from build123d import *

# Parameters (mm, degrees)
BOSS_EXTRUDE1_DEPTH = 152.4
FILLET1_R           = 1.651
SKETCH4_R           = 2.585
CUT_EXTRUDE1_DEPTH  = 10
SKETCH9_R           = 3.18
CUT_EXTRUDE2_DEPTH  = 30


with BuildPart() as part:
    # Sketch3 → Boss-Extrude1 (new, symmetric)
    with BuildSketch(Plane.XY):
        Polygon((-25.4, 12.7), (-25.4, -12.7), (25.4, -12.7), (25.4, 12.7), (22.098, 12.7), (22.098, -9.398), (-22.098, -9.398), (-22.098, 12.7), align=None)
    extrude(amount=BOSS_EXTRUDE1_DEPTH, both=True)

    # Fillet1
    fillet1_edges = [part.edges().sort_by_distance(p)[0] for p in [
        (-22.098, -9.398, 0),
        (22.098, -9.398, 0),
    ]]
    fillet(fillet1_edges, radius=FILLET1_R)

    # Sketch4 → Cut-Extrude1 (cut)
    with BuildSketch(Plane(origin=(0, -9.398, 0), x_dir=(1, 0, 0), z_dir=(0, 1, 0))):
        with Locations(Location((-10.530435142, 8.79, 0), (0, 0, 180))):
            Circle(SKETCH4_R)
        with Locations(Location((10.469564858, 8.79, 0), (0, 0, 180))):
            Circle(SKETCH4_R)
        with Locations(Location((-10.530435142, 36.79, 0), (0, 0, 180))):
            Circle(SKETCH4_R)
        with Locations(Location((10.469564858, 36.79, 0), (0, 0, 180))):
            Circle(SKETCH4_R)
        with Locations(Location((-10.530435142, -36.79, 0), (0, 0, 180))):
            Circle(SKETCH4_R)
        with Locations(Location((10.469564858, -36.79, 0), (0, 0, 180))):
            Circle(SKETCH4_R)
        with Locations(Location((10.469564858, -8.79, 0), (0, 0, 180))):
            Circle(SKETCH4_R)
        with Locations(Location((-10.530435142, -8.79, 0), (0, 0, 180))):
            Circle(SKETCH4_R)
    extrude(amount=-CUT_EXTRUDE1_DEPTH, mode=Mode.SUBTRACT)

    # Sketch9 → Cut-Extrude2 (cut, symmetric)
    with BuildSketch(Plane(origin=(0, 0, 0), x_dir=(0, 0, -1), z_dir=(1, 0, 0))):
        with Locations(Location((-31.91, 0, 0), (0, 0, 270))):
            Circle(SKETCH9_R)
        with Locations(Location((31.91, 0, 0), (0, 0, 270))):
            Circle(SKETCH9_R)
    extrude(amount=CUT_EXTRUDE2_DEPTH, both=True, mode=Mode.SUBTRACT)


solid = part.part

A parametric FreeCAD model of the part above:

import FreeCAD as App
import Part
import Sketcher

V = App.Vector
Q = App.Units.Quantity


def edges_at(feature, points):
    """Names of the edges that pass closest to the given points."""
    edges = feature.Shape.Edges
    near = lambda p: min(range(len(edges)), key=lambda i: edges[i].distToShape(Part.Vertex(*p))[0])
    return sorted({f"Edge{near(p) + 1}" for p in points})


def add_polygon(sketch, points):
    """Adds a closed chain of lines whose ends are joined by coincident constraints."""
    first, n = sketch.GeometryCount, len(points)
    for a, b in zip(points, points[1:] + points[:1]):
        sketch.addGeometry(Part.LineSegment(App.Vector(*a, 0), App.Vector(*b, 0)), False)
    for i in range(n):
        sketch.addConstraint(Sketcher.Constraint("Coincident", first + i, 2, first + (i + 1) % n, 1))

doc = App.newDocument("Part")
body = doc.addObject("PartDesign::Body", "Body")

# Sketch on XY plane
sketch1 = doc.addObject("Sketcher::SketchObject", "Sketch")
body.addObject(sketch1)
sketch1.AttachmentSupport = (doc.XY_Plane, [""])
sketch1.MapMode = "FlatFace"
add_polygon(sketch1, [(-25.4, 12.7), (-25.4, -12.7), (25.4, -12.7), (25.4, 12.7), (22.098, 12.7), (22.098, -9.398), (-22.098, -9.398), (-22.098, 12.7)])  # lines 0-7
sketch1.addConstraint([
    Sketcher.Constraint("Vertical", 0),
    Sketcher.Constraint("Horizontal", 1),
    Sketcher.Constraint("Vertical", 2),
    Sketcher.Constraint("Horizontal", 3),
    Sketcher.Constraint("Vertical", 4),
    Sketcher.Constraint("Horizontal", 5),
    Sketcher.Constraint("Vertical", 6),
    Sketcher.Constraint("Horizontal", 7),
    Sketcher.Constraint("Symmetric", 0, 2, 2, 2, -1, 1),
    Sketcher.Constraint("Symmetric", 3, 2, 6, 2, -2),
    Sketcher.Constraint("DistanceX", 1, 1, 1, 2, Q("2 in")),
    Sketcher.Constraint("DistanceY", 0, 2, 0, 1, Q("1 in")),
    Sketcher.Constraint("DistanceX", 3, 2, 3, 1, Q("0.13 in")),
    Sketcher.Constraint("DistanceY", 4, 2, 4, 1, Q("0.87 in")),
])
pad1 = doc.addObject("PartDesign::Pad", "Pad")
body.addObject(pad1)
pad1.Profile = sketch1
pad1.Length = Q("12 in")
pad1.Midplane = True
doc.recompute()

fillet = doc.addObject("PartDesign::Fillet", "Fillet")
body.addObject(fillet)
fillet.Base = (pad1, edges_at(pad1, [(-22.098, -9.398, 0), (22.098, -9.398, 0)]))
fillet.Radius = Q("0.065 in")

# Sketch on XZ plane
sketch2 = doc.addObject("Sketcher::SketchObject", "Sketch001")
body.addObject(sketch2)
sketch2.AttachmentSupport = (doc.XZ_Plane, [""])
sketch2.MapMode = "FlatFace"
sketch2.AttachmentOffset = App.Placement(V(0, 0, 0.37 * 25.4), App.Rotation())
sketch2.addGeometry([
    Part.Circle(V(-10.530435, -8.79, 0), V(0, 0, 1), 2.585),  # 0
    Part.Circle(V(10.469565, -8.79, 0), V(0, 0, 1), 2.585),  # 1
    Part.Circle(V(-10.530435, -36.79, 0), V(0, 0, 1), 2.585),  # 2
    Part.Circle(V(10.469565, -36.79, 0), V(0, 0, 1), 2.585),  # 3
    Part.Circle(V(-10.530435, 36.79, 0), V(0, 0, 1), 2.585),  # 4
    Part.Circle(V(10.469565, 36.79, 0), V(0, 0, 1), 2.585),  # 5
    Part.Circle(V(10.469565, 8.79, 0), V(0, 0, 1), 2.585),  # 6
    Part.Circle(V(-10.530435, 8.79, 0), V(0, 0, 1), 2.585),  # 7
], False)
sketch2.addConstraint([
    Sketcher.Constraint("Equal", 0, 1),
    Sketcher.Constraint("Equal", 1, 2),
    Sketcher.Constraint("Equal", 2, 3),
    Sketcher.Constraint("Equal", 3, 4),
    Sketcher.Constraint("Equal", 4, 5),
    Sketcher.Constraint("Equal", 5, 6),
    Sketcher.Constraint("Equal", 6, 7),
    Sketcher.Constraint("Symmetric", 2, 3, 4, 3, -1),
    Sketcher.Constraint("Symmetric", 3, 3, 5, 3, -1),
    Sketcher.Constraint("Symmetric", 1, 3, 6, 3, -1),
    Sketcher.Constraint("Symmetric", 0, 3, 7, 3, -1),
    Sketcher.Constraint("Horizontal", 0, 3, 1, 3),
    Sketcher.Constraint("Horizontal", 2, 3, 3, 3),
    Sketcher.Constraint("Vertical", 0, 3, 2, 3),
    Sketcher.Constraint("Vertical", 1, 3, 3, 3),
    Sketcher.Constraint("Diameter", 0, 5.17),
    Sketcher.Constraint("DistanceY", 0, 3, -1, 1, 8.79),
    Sketcher.Constraint("DistanceY", 2, 3, -1, 1, 36.79),
    Sketcher.Constraint("DistanceX", 0, 3, 1, 3, 21.0),
    Sketcher.Constraint("DistanceX", 0, 3, -1, 1, 10.530435),
])
pocket1 = doc.addObject("PartDesign::Pocket", "Pocket")
body.addObject(pocket1)
pocket1.Profile = sketch2
pocket1.Length = 10
pocket1.Reversed = True

# Sketch on YZ plane
sketch3 = doc.addObject("Sketcher::SketchObject", "Sketch002")
body.addObject(sketch3)
sketch3.AttachmentSupport = (doc.YZ_Plane, [""])
sketch3.MapMode = "FlatFace"
sketch3.addGeometry([
    Part.Circle(V(0, 31.91, 0), V(0, 0, 1), 3.18),
    Part.Circle(V(0, -31.91, 0), V(0, 0, 1), 3.18),
], False)
sketch3.addConstraint([
    Sketcher.Constraint("Equal", 0, 1),
    Sketcher.Constraint("Symmetric", 0, 3, 1, 3, -1, 1),
    Sketcher.Constraint("PointOnObject", 0, 3, -2),
    Sketcher.Constraint("Diameter", 0, 6.36),
    Sketcher.Constraint("DistanceY", -1, 1, 0, 3, 31.91),
])
pocket2 = doc.addObject("PartDesign::Pocket", "Pocket001")
body.addObject(pocket2)
pocket2.Profile = sketch3
pocket2.Length = 60
pocket2.Midplane = True

doc.recompute()
